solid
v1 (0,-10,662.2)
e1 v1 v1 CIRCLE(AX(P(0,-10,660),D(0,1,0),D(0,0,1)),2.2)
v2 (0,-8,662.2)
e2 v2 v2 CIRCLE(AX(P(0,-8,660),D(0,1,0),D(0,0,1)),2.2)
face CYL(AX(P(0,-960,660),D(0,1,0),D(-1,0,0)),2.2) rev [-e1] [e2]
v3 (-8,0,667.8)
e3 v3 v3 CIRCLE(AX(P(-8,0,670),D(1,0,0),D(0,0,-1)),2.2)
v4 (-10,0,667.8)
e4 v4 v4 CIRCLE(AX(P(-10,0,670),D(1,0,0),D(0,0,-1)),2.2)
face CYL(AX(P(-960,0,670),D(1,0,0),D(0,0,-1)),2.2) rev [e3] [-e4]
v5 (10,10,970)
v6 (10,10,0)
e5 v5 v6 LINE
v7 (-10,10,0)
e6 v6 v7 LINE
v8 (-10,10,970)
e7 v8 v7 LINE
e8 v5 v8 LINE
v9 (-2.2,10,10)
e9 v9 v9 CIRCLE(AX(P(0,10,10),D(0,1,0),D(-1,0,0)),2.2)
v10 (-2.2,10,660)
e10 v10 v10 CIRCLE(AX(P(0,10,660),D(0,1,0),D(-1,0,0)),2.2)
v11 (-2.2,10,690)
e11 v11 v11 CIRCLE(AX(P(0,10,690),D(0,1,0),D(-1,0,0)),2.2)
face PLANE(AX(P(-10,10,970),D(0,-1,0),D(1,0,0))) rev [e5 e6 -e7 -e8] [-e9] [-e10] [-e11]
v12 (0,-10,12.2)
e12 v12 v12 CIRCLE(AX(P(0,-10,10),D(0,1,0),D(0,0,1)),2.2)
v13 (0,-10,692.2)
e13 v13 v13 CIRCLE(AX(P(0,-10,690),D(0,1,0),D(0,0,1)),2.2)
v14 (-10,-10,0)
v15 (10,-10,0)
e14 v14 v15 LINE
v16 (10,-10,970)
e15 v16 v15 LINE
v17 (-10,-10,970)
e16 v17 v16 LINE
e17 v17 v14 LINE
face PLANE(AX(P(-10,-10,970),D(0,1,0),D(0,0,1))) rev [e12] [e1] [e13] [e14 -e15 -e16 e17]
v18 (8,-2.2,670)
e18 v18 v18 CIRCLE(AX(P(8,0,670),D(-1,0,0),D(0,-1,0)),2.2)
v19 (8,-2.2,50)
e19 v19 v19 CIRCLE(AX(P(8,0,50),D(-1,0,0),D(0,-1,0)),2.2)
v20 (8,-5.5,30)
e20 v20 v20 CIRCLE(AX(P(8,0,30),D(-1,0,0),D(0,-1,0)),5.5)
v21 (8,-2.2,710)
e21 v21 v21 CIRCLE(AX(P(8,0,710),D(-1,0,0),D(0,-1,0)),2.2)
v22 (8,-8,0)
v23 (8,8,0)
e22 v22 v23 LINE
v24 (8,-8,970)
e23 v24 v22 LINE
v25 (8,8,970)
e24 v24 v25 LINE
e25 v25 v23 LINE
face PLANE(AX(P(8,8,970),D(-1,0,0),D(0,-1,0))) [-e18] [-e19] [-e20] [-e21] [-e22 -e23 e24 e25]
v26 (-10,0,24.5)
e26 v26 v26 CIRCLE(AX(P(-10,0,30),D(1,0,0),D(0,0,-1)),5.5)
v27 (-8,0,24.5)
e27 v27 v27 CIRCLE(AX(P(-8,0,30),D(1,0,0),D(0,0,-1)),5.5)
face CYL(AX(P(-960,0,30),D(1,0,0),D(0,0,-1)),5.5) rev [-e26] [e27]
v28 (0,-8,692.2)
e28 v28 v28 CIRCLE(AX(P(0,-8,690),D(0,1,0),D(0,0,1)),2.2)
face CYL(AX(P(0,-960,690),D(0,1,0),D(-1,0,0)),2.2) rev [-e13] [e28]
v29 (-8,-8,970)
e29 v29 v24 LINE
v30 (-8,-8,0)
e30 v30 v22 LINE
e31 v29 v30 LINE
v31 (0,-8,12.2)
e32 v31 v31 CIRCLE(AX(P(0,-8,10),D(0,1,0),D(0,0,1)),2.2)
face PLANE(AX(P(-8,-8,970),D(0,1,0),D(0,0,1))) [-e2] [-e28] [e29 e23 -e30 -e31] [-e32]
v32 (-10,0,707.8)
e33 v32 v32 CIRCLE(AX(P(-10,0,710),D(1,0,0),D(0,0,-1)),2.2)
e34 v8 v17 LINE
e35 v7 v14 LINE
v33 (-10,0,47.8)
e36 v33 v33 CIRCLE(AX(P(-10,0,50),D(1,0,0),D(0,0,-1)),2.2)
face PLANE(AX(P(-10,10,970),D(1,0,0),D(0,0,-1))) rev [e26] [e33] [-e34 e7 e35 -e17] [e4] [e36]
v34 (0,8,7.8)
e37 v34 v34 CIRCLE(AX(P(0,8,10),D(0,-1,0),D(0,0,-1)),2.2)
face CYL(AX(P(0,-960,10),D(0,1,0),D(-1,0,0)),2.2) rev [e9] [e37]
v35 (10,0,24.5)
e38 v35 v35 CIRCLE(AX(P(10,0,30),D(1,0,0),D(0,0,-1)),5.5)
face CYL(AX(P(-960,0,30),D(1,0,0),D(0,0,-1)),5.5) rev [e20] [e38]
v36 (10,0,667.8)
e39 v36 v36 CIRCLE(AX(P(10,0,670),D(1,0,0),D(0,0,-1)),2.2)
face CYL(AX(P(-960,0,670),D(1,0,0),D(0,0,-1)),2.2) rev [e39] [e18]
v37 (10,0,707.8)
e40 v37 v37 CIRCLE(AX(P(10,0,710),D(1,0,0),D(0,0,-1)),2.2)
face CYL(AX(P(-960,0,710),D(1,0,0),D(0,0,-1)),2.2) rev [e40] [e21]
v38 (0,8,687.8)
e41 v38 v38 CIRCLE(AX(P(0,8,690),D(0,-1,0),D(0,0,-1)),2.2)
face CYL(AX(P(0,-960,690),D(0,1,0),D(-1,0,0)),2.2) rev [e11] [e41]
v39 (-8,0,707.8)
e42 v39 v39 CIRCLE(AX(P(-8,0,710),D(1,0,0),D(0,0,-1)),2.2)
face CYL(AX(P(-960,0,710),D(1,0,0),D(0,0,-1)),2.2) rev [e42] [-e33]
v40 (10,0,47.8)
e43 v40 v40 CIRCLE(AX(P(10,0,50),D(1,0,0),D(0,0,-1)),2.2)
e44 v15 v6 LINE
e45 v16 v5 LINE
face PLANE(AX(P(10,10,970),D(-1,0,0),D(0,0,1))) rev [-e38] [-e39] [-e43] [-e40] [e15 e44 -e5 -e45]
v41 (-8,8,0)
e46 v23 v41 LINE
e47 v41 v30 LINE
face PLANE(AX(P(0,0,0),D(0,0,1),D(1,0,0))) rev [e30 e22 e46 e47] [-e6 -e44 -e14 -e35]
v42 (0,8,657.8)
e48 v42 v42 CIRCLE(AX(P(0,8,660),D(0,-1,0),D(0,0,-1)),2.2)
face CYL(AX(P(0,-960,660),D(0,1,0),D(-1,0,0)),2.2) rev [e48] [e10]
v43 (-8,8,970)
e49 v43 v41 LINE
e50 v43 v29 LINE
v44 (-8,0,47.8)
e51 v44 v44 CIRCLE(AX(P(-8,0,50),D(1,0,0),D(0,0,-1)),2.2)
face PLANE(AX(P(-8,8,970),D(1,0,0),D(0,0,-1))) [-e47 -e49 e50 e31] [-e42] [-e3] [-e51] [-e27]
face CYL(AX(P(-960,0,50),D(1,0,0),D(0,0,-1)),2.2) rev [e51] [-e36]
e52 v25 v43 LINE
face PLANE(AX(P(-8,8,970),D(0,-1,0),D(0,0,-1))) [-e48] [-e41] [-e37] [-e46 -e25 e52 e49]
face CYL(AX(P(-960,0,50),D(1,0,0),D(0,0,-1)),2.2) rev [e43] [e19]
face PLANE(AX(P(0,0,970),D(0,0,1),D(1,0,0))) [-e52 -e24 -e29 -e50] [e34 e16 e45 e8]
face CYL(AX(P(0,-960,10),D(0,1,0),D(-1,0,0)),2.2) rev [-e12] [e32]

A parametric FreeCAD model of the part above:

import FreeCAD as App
import Part
import Sketcher

V = App.Vector


def add_polygon(sketch, points):
    """Adds a closed chain of lines whose ends are joined by coincident constraints."""
    first, n = sketch.GeometryCount, len(points)
    for a, b in zip(points, points[1:] + points[:1]):
        sketch.addGeometry(Part.LineSegment(App.Vector(*a, 0), App.Vector(*b, 0)), False)
    for i in range(n):
        sketch.addConstraint(Sketcher.Constraint("Coincident", first + i, 2, first + (i + 1) % n, 1))

doc = App.newDocument("Part")
body = doc.addObject("PartDesign::Body", "Body")

# Sketch on XY plane
sketch1 = doc.addObject("Sketcher::SketchObject", "Sketch")
body.addObject(sketch1)
sketch1.AttachmentSupport = (doc.XY_Plane, [""])
sketch1.MapMode = "FlatFace"
add_polygon(sketch1, [(-10, 10), (-10, -10), (10, -10), (10, 10)])  # lines 0-3
add_polygon(sketch1, [(8, -8), (-8, -8), (-8, 8), (8, 8)])  # lines 4-7
sketch1.addConstraint([
    Sketcher.Constraint("Vertical", 0),
    Sketcher.Constraint("Horizontal", 1),
    Sketcher.Constraint("Vertical", 2),
    Sketcher.Constraint("Horizontal", 3),
    Sketcher.Constraint("Horizontal", 4),
    Sketcher.Constraint("Vertical", 5),
    Sketcher.Constraint("Horizontal", 6),
    Sketcher.Constraint("Vertical", 7),
    Sketcher.Constraint("Symmetric", 0, 2, 2, 2, -1, 1),
    Sketcher.Constraint("Symmetric", 4, 2, 6, 2, -1, 1),
    Sketcher.Constraint("Equal", 3, 0),
    Sketcher.Constraint("Equal", 6, 5),
    Sketcher.Constraint("DistanceX", 1, 1, 1, 2, 20.0),
    Sketcher.Constraint("DistanceX", 4, 2, 4, 1, 16.0),
])
pad1 = doc.addObject("PartDesign::Pad", "Pad")
body.addObject(pad1)
pad1.Profile = sketch1
pad1.Length = 970

# Sketch on YZ plane
sketch2 = doc.addObject("Sketcher::SketchObject", "Sketch001")
body.addObject(sketch2)
sketch2.AttachmentSupport = (doc.YZ_Plane, [""])
sketch2.MapMode = "FlatFace"
sketch2.AttachmentOffset = App.Placement(V(0, 0, 10), App.Rotation())
sketch2.addGeometry([
    Part.Circle(V(0, 710, 0), V(0, 0, 1), 2.2),
    Part.Circle(V(0, 670, 0), V(0, 0, 1), 2.2),
    Part.Circle(V(0, 50, 0), V(0, 0, 1), 2.2),
    Part.Circle(V(0, 30, 0), V(0, 0, 1), 5.5),
], False)
sketch2.addConstraint([
    Sketcher.Constraint("Equal", 0, 1),
    Sketcher.Constraint("Equal", 1, 2),
    Sketcher.Constraint("PointOnObject", 0, 3, -2),
    Sketcher.Constraint("PointOnObject", 1, 3, -2),
    Sketcher.Constraint("PointOnObject", 2, 3, -2),
    Sketcher.Constraint("PointOnObject", 3, 3, -2),
    Sketcher.Constraint("Diameter", 3, 11.0),
    Sketcher.Constraint("Diameter", 0, 4.4),
    Sketcher.Constraint("DistanceY", -1, 1, 0, 3, 710.0),
    Sketcher.Constraint("DistanceY", -1, 1, 1, 3, 670.0),
    Sketcher.Constraint("DistanceY", -1, 1, 2, 3, 50.0),
    Sketcher.Constraint("DistanceY", -1, 1, 3, 3, 30.0),
])
pocket1 = doc.addObject("PartDesign::Pocket", "Pocket")
body.addObject(pocket1)
pocket1.Profile = sketch2
pocket1.Length = 970

# Sketch on XZ plane
sketch3 = doc.addObject("Sketcher::SketchObject", "Sketch002")
body.addObject(sketch3)
sketch3.AttachmentSupport = (doc.XZ_Plane, [""])
sketch3.MapMode = "FlatFace"
sketch3.AttachmentOffset = App.Placement(V(0, 0, -10), App.Rotation())
sketch3.addGeometry([
    Part.Circle(V(0, 690, 0), V(0, 0, 1), 2.2),
    Part.Circle(V(0, 660, 0), V(0, 0, 1), 2.2),
    Part.Circle(V(0, 10, 0), V(0, 0, 1), 2.2),
], False)
sketch3.addConstraint([
    Sketcher.Constraint("Equal", 0, 1),
    Sketcher.Constraint("Equal", 1, 2),
    Sketcher.Constraint("PointOnObject", 0, 3, -2),
    Sketcher.Constraint("PointOnObject", 1, 3, -2),
    Sketcher.Constraint("PointOnObject", 2, 3, -2),
    Sketcher.Constraint("Diameter", 0, 4.4),
    Sketcher.Constraint("DistanceY", -1, 1, 0, 3, 690.0),
    Sketcher.Constraint("DistanceY", -1, 1, 1, 3, 660.0),
    Sketcher.Constraint("DistanceY", -1, 1, 2, 3, 10.0),
])
pocket2 = doc.addObject("PartDesign::Pocket", "Pocket001")
body.addObject(pocket2)
pocket2.Profile = sketch3
pocket2.Length = 970
pocket2.Reversed = True

doc.recompute()
